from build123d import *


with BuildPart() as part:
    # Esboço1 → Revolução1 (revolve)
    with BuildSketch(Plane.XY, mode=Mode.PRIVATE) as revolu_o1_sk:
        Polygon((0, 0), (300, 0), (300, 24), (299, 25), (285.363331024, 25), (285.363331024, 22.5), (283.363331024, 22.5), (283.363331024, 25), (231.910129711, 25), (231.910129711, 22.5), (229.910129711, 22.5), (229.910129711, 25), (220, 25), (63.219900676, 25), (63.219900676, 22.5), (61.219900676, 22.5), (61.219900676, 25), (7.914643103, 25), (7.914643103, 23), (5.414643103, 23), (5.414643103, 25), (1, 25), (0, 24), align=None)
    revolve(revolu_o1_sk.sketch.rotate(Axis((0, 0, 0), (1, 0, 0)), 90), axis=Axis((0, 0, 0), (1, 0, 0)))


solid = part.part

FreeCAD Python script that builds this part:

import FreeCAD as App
import Part
import Sketcher
from FreeCAD import Vector
Q = App.Units.Quantity

doc = App.newDocument("Part")
body = doc.addObject("PartDesign::Body", "Body")

sketch1 = body.newObject("Sketcher::SketchObject", "Sketch")
sketch1.AttachmentSupport = (doc.getObject("XY_Plane"), [""])
sketch1.MapMode = "FlatFace"
sketch1.addGeometry([
    Part.LineSegment(Vector(0, 0, 0), Vector(300, 0, 0)),
    Part.LineSegment(Vector(300, 0, 0), Vector(300, 24, 0)),
    Part.LineSegment(Vector(300, 24, 0), Vector(299, 25, 0)),
    Part.LineSegment(Vector(299, 25, 0), Vector(285.363331, 25, 0)),
    Part.LineSegment(Vector(285.363331, 25, 0), Vector(285.363331, 22.5, 0)),
    Part.LineSegment(Vector(285.363331, 22.5, 0), Vector(283.363331, 22.5, 0)),
    Part.LineSegment(Vector(283.363331, 22.5, 0), Vector(283.363331, 25, 0)),
    Part.LineSegment(Vector(283.363331, 25, 0), Vector(231.91013, 25, 0)),
    Part.LineSegment(Vector(231.91013, 25, 0), Vector(231.91013, 22.5, 0)),
    Part.LineSegment(Vector(231.91013, 22.5, 0), Vector(229.91013, 22.5, 0)),
    Part.LineSegment(Vector(229.91013, 22.5, 0), Vector(229.91013, 25, 0)),
    Part.LineSegment(Vector(229.91013, 25, 0), Vector(63.219901, 25, 0)),
    Part.LineSegment(Vector(63.219901, 25, 0), Vector(63.219901, 22.5, 0)),
    Part.LineSegment(Vector(63.219901, 22.5, 0), Vector(61.219901, 22.5, 0)),
    Part.LineSegment(Vector(61.219901, 22.5, 0), Vector(61.219901, 25, 0)),
    Part.LineSegment(Vector(61.219901, 25, 0), Vector(7.914643, 25, 0)),
    Part.LineSegment(Vector(7.914643, 25, 0), Vector(7.914643, 23, 0)),
    Part.LineSegment(Vector(7.914643, 23, 0), Vector(5.414643, 23, 0)),
    Part.LineSegment(Vector(5.414643, 23, 0), Vector(5.414643, 25, 0)),
    Part.LineSegment(Vector(5.414643, 25, 0), Vector(1, 25, 0)),
    Part.LineSegment(Vector(1, 25, 0), Vector(0, 24, 0)),
    Part.LineSegment(Vector(0, 24, 0), Vector(0, 0, 0)),
], False)
sketch1.addConstraint([
    Sketcher.Constraint("Coincident", 0, 2, 1, 1),
    Sketcher.Constraint("Coincident", 1, 2, 2, 1),
    Sketcher.Constraint("Coincident", 2, 2, 3, 1),
    Sketcher.Constraint("Coincident", 3, 2, 4, 1),
    Sketcher.Constraint("Coincident", 4, 2, 5, 1),
    Sketcher.Constraint("Coincident", 5, 2, 6, 1),
    Sketcher.Constraint("Coincident", 6, 2, 7, 1),
    Sketcher.Constraint("Coincident", 7, 2, 8, 1),
    Sketcher.Constraint("Coincident", 8, 2, 9, 1),
    Sketcher.Constraint("Coincident", 9, 2, 10, 1),
    Sketcher.Constraint("Coincident", 10, 2, 11, 1),
    Sketcher.Constraint("Coincident", 11, 2, 12, 1),
    Sketcher.Constraint("Coincident", 12, 2, 13, 1),
    Sketcher.Constraint("Coincident", 13, 2, 14, 1),
    Sketcher.Constraint("Coincident", 14, 2, 15, 1),
    Sketcher.Constraint("Coincident", 15, 2, 16, 1),
    Sketcher.Constraint("Coincident", 16, 2, 17, 1),
    Sketcher.Constraint("Coincident", 17, 2, 18, 1),
    Sketcher.Constraint("Coincident", 18, 2, 19, 1),
    Sketcher.Constraint("Coincident", 19, 2, 20, 1),
    Sketcher.Constraint("Coincident", 20, 2, 21, 1),
    Sketcher.Constraint("Coincident", 21, 2, 0, 1),
    Sketcher.Constraint("Horizontal", 0),
    Sketcher.Constraint("Vertical", 1),
    Sketcher.Constraint("Horizontal", 3),
    Sketcher.Constraint("Vertical", 4),
    Sketcher.Constraint("Horizontal", 5),
    Sketcher.Constraint("Vertical", 6),
    Sketcher.Constraint("Horizontal", 7),
    Sketcher.Constraint("Vertical", 8),
    Sketcher.Constraint("Horizontal", 9),
    Sketcher.Constraint("Vertical", 10),
    Sketcher.Constraint("Horizontal", 11),
    Sketcher.Constraint("Vertical", 12),
    Sketcher.Constraint("Horizontal", 13),
    Sketcher.Constraint("Vertical", 14),
    Sketcher.Constraint("Horizontal", 15),
    Sketcher.Constraint("Vertical", 16),
    Sketcher.Constraint("Horizontal", 17),
    Sketcher.Constraint("Vertical", 18),
    Sketcher.Constraint("Horizontal", 19),
    Sketcher.Constraint("Vertical", 21),
    Sketcher.Constraint("Coincident", 21, 2, -1, 1),
    Sketcher.Constraint("Perpendicular", 2, 20),
    Sketcher.Constraint("Horizontal", 3, 2, 6, 2),
    Sketcher.Constraint("Horizontal", 5, 2, 8, 2),
    Sketcher.Constraint("Horizontal", 7, 2, 10, 2),
    Sketcher.Constraint("Horizontal", 9, 2, 12, 2),
    Sketcher.Constraint("Horizontal", 11, 2, 14, 2),
    Sketcher.Constraint("Horizontal", 15, 2, 18, 2),
    Sketcher.Constraint("Horizontal", 1, 2, 20, 2),
    Sketcher.Constraint("Equal", 5, 9),
    Sketcher.Constraint("Equal", 9, 13),
    Sketcher.Constraint("Equal", 17, 4),
    Sketcher.Constraint("Equal", 13, 16),
    Sketcher.Constraint("Equal", 2, 20),
    Sketcher.Constraint("DistanceX", 0, 1, 0, 2, Q("300 mm")),
    Sketcher.Constraint("DistanceX", 5, 2, 5, 1, Q("2 mm")),
    Sketcher.Constraint("DistanceY", 1, 1, 1, 2, Q("24 mm")),
    Sketcher.Constraint("DistanceX", 17, 2, 17, 1, Q("2.5 mm")),
    Sketcher.Constraint("DistanceX", -1, 1, 2, 2, Q("299 mm")),
    Sketcher.Constraint("DistanceX", 7, 2, 7, 1, Q("51.453201 mm")),
    Sketcher.Constraint("DistanceX", 3, 2, 3, 1, Q("13.636669 mm")),
    Sketcher.Constraint("DistanceX", 11, 2, 11, 1, Q("166.690229 mm")),
    Sketcher.Constraint("DistanceX", 15, 2, 15, 1, Q("53.305258 mm")),
])
revolution = body.newObject("PartDesign::Revolution", "Revolution")
revolution.Profile = sketch1
revolution.ReferenceAxis = (sketch1, ["H_Axis"])
revolution.Angle = 360

doc.recompute()
